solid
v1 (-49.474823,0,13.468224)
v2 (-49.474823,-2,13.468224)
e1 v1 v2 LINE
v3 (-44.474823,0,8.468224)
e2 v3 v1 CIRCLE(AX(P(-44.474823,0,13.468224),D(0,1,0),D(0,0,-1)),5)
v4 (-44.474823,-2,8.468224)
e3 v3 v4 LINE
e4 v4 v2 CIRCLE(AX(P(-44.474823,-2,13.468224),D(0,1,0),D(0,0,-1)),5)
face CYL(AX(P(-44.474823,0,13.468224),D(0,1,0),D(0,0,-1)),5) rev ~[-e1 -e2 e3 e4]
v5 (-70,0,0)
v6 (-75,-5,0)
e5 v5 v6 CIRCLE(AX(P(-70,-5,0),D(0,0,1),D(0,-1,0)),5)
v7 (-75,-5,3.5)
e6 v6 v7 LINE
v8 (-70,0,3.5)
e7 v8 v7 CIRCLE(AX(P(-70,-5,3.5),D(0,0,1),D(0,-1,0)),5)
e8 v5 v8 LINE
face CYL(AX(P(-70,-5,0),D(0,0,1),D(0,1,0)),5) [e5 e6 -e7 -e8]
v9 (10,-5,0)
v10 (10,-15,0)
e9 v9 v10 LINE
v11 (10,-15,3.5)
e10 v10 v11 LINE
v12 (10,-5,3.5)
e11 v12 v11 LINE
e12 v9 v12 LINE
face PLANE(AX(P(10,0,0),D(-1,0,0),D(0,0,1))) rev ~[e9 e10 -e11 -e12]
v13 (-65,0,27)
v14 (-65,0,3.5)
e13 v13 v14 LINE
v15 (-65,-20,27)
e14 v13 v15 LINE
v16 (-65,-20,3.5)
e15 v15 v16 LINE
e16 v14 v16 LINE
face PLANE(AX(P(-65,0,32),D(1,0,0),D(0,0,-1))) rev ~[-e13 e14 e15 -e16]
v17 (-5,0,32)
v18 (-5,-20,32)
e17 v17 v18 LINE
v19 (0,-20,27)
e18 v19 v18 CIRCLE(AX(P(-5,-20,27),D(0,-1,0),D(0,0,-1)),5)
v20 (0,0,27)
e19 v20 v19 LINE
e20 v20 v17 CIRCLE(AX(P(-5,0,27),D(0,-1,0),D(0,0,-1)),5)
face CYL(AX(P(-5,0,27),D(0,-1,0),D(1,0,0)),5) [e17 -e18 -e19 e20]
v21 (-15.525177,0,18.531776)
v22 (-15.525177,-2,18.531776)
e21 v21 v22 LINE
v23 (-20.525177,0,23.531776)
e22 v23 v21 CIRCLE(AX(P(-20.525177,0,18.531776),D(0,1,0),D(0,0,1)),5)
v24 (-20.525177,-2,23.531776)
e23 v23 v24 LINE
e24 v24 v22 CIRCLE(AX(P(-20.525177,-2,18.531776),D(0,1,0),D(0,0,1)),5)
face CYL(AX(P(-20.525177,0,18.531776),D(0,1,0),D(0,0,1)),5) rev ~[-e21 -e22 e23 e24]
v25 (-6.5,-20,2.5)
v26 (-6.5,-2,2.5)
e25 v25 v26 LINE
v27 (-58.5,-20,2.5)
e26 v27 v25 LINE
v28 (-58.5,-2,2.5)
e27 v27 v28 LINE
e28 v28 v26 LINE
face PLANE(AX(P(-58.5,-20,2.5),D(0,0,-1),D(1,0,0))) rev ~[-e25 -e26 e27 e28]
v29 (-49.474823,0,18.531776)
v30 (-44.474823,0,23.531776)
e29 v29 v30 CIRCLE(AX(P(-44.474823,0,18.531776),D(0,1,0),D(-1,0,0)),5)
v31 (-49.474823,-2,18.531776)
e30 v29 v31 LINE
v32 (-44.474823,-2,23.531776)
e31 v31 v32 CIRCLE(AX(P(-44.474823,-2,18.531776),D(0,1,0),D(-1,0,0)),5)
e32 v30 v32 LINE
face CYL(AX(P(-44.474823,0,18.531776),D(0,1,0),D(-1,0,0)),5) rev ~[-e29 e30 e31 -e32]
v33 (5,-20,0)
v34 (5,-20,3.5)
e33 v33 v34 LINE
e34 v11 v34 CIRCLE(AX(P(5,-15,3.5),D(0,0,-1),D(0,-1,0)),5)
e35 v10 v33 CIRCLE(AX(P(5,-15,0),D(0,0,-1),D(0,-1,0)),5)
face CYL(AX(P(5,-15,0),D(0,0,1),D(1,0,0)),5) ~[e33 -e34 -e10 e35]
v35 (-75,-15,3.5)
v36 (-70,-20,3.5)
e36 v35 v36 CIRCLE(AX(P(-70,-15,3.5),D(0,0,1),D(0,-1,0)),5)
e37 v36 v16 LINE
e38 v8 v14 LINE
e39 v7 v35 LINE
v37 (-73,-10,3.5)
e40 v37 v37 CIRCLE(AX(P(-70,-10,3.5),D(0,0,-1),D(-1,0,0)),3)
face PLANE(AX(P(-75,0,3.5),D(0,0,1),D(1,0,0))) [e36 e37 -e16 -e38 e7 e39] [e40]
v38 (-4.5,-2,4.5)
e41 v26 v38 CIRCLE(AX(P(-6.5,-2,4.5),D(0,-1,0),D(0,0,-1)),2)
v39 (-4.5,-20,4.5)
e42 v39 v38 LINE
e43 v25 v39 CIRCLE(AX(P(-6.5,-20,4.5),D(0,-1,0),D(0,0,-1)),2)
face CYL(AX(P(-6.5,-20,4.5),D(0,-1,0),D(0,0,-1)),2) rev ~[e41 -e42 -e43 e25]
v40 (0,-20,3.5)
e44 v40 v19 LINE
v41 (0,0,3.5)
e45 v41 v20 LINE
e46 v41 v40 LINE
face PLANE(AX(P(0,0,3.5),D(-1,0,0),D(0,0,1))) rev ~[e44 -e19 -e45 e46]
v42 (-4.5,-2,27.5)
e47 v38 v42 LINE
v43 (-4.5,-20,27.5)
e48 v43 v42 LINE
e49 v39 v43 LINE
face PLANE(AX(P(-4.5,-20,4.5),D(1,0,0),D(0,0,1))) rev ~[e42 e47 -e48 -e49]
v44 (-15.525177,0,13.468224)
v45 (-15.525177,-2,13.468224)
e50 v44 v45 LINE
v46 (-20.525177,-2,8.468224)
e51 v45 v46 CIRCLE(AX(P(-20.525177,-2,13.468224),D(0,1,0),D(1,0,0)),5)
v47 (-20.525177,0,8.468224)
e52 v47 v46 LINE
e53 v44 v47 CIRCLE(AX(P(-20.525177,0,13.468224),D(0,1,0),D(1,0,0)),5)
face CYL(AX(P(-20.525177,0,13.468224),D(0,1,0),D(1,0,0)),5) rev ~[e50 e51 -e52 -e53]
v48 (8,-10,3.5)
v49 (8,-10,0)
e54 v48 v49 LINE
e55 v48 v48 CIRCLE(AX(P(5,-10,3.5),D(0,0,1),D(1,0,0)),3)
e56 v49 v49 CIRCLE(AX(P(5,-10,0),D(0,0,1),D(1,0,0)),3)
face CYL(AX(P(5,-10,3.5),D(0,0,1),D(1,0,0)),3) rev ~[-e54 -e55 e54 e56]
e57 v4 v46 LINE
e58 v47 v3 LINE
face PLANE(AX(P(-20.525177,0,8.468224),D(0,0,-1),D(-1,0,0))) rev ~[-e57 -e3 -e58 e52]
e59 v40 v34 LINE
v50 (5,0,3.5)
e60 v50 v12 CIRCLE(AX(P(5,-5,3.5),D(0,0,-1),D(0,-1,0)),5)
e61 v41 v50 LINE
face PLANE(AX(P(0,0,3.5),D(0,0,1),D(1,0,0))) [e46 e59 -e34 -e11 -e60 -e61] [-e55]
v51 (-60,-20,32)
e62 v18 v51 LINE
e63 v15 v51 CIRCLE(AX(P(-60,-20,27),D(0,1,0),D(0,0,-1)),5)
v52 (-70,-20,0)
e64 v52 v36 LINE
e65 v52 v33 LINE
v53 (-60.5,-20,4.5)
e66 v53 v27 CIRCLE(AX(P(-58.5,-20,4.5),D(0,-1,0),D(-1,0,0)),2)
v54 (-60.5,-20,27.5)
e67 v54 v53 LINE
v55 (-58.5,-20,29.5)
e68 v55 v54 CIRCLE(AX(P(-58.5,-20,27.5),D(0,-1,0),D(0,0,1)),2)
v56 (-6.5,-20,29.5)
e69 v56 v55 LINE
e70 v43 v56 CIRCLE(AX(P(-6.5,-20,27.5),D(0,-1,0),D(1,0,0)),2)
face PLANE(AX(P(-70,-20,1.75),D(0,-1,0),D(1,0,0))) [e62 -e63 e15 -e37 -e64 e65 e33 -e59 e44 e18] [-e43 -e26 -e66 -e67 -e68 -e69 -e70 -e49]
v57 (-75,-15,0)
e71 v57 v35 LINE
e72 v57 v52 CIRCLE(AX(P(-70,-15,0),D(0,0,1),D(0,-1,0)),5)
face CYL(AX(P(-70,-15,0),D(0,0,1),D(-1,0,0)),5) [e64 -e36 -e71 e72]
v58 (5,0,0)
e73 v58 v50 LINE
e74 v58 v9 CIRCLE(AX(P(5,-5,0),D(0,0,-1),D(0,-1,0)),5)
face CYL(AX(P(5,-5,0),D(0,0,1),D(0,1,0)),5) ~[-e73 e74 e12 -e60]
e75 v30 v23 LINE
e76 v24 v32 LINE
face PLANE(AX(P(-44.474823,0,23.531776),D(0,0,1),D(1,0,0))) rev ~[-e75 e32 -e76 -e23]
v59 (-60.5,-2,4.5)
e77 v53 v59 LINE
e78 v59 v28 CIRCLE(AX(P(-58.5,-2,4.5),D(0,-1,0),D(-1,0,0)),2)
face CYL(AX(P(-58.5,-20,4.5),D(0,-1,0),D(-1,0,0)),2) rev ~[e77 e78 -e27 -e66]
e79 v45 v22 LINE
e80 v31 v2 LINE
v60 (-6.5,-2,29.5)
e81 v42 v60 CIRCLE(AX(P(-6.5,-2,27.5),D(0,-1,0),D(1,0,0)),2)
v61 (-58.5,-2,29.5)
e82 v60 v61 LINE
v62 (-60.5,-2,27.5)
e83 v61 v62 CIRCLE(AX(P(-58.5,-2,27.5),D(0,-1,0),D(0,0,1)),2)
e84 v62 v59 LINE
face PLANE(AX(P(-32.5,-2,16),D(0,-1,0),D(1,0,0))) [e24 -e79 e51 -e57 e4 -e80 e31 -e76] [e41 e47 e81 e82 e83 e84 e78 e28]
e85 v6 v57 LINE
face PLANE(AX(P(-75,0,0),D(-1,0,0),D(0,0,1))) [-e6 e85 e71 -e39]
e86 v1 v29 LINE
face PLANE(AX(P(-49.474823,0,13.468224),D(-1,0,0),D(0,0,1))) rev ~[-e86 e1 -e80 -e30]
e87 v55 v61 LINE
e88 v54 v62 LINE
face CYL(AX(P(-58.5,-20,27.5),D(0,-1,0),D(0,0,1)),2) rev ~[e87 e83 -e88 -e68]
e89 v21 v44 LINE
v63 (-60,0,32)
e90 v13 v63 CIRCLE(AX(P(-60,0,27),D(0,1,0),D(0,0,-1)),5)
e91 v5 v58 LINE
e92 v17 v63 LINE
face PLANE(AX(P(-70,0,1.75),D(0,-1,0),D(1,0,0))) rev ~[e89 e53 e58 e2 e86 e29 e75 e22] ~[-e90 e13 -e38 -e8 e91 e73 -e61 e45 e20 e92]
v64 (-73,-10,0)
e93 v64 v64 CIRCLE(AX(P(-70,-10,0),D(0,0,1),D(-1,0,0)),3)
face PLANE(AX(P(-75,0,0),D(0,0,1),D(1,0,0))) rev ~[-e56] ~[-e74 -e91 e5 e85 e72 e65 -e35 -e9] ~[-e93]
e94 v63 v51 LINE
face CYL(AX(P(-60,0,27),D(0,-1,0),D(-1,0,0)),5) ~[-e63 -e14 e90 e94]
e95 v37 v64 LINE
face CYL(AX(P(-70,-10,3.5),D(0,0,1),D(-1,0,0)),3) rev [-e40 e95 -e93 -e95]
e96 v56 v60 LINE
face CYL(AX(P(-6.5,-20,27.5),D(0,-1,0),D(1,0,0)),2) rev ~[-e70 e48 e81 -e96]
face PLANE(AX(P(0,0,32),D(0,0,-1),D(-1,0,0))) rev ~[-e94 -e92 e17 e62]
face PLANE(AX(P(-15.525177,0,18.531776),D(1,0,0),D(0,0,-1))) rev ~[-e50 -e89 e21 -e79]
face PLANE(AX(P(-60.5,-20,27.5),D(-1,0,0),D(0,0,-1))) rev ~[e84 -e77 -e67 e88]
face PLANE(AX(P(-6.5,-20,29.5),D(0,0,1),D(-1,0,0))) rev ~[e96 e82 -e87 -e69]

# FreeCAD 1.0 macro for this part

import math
import FreeCAD as App
import Part
import Sketcher

V = App.Vector


def edges_at(feature, points):
    """Names of the edges that pass closest to the given points."""
    edges = feature.Shape.Edges
    near = lambda p: min(range(len(edges)), key=lambda i: edges[i].distToShape(Part.Vertex(*p))[0])
    return sorted({f"Edge{near(p) + 1}" for p in points})


def add_polygon(sketch, points):
    """Adds a closed chain of lines whose ends are joined by coincident constraints."""
    first, n = sketch.GeometryCount, len(points)
    for a, b in zip(points, points[1:] + points[:1]):
        sketch.addGeometry(Part.LineSegment(App.Vector(*a, 0), App.Vector(*b, 0)), False)
    for i in range(n):
        sketch.addConstraint(Sketcher.Constraint("Coincident", first + i, 2, first + (i + 1) % n, 1))

doc = App.newDocument("Part")
body = doc.addObject("PartDesign::Body", "Body")

sketch1 = doc.addObject("Sketcher::SketchObject", "Sketch")
body.addObject(sketch1)
sketch1.AttachmentSupport = (doc.XZ_Plane, [""])
sketch1.MapMode = "FlatFace"
add_polygon(sketch1, [(-75, 3.5), (-75, 0), (10, 0), (10, 3.5), (0, 3.5), (0, 32), (-65, 32), (-65, 3.5)])
sketch1.addConstraint(Sketcher.Constraint("Vertical", 0))
sketch1.addConstraint(Sketcher.Constraint("Horizontal", 1))
sketch1.addConstraint(Sketcher.Constraint("Vertical", 2))
sketch1.addConstraint(Sketcher.Constraint("Horizontal", 3))
sketch1.addConstraint(Sketcher.Constraint("Vertical", 4))
sketch1.addConstraint(Sketcher.Constraint("Horizontal", 5))
sketch1.addConstraint(Sketcher.Constraint("Vertical", 6))
sketch1.addConstraint(Sketcher.Constraint("Horizontal", 7))
sketch1.addConstraint(Sketcher.Constraint("PointOnObject", 0, 2, -1))
sketch1.addConstraint(Sketcher.Constraint("PointOnObject", 3, 2, -2))
sketch1.addConstraint(Sketcher.Constraint("Horizontal", 3, 2, 6, 2))
sketch1.addConstraint(Sketcher.Constraint("Equal", 3, 7))
sketch1.addConstraint(Sketcher.Constraint("DistanceX", 1, 1, 1, 2, 85.0))
sketch1.addConstraint(Sketcher.Constraint("DistanceX", 3, 2, 3, 1, 10.0))
sketch1.addConstraint(Sketcher.Constraint("DistanceY", 0, 2, 0, 1, 3.5))
sketch1.addConstraint(Sketcher.Constraint("DistanceY", 4, 1, 4, 2, 28.5))
pad1 = doc.addObject("PartDesign::Pad", "Pad")
body.addObject(pad1)
pad1.Profile = sketch1
pad1.Length = 20

sketch2 = doc.addObject("Sketcher::SketchObject", "Sketch001")
body.addObject(sketch2)
sketch2.AttachmentSupport = (doc.XY_Plane, [""])
sketch2.MapMode = "FlatFace"
sketch2.AttachmentOffset = App.Placement(V(0, 0, 3.5), App.Rotation())
sketch2.addGeometry(Part.Circle(V(5, -10, 0), V(0, 0, 1), 3), False)
sketch2.addConstraint(Sketcher.Constraint("Diameter", 0, 6.0))
sketch2.addConstraint(Sketcher.Constraint("DistanceX", -1, 1, 0, 3, 5.0))
sketch2.addConstraint(Sketcher.Constraint("DistanceY", 0, 3, -1, 1, 10.0))
pocket1 = doc.addObject("PartDesign::Pocket", "Pocket")
body.addObject(pocket1)
pocket1.Profile = sketch2
pocket1.Type = "ThroughAll"
doc.recompute()

datumplane = doc.addObject("PartDesign::Plane", "DatumPlane")
body.addObject(datumplane)
datumplane.AttachmentSupport = (doc.YZ_Plane, [""])
datumplane.MapMode = "FlatFace"
datumplane.AttachmentOffset = App.Placement(V(0, 0, -32.5), App.Rotation())
mirrored = doc.addObject("PartDesign::Mirrored", "Mirrored")
body.addObject(mirrored)
mirrored.Originals = [pocket1]
mirrored.MirrorPlane = (datumplane, [""])
body.Tip = mirrored
doc.recompute()

fillet = doc.addObject("PartDesign::Fillet", "Fillet")
body.addObject(fillet)
fillet.Base = (mirrored, edges_at(mirrored, [(0, -10, 32), (-65, -10, 32)]))
fillet.Radius = 5

sketch3 = doc.addObject("Sketcher::SketchObject", "Sketch002")
body.addObject(sketch3)
sketch3.AttachmentSupport = (doc.XZ_Plane, [""])
sketch3.MapMode = "FlatFace"
sketch3.AttachmentOffset = App.Placement(V(0, 0, 20), App.Rotation())
sketch3.addGeometry(Part.LineSegment(V(-58.5, 2.5, 0), V(-6.5, 2.5, 0)), False)
sketch3.addGeometry(Part.ArcOfCircle(Part.Circle(V(-6.5, 4.5, 0), V(0, 0, 1), 2), math.radians(-90), math.radians(0)), False)
sketch3.addGeometry(Part.LineSegment(V(-4.5, 4.5, 0), V(-4.5, 27.5, 0)), False)
sketch3.addGeometry(Part.ArcOfCircle(Part.Circle(V(-6.5, 27.5, 0), V(0, 0, 1), 2), math.radians(0), math.radians(90)), False)
sketch3.addGeometry(Part.LineSegment(V(-6.5, 29.5, 0), V(-58.5, 29.5, 0)), False)
sketch3.addGeometry(Part.ArcOfCircle(Part.Circle(V(-58.5, 27.5, 0), V(0, 0, 1), 2), math.radians(90), math.radians(180)), False)
sketch3.addGeometry(Part.LineSegment(V(-60.5, 27.5, 0), V(-60.5, 4.5, 0)), False)
sketch3.addGeometry(Part.ArcOfCircle(Part.Circle(V(-58.5, 4.5, 0), V(0, 0, 1), 2), math.radians(180), math.radians(270)), False)
sketch3.addConstraint(Sketcher.Constraint("Tangent", 0, 2, 1, 1))
sketch3.addConstraint(Sketcher.Constraint("Tangent", 1, 2, 2, 1))
sketch3.addConstraint(Sketcher.Constraint("Tangent", 2, 2, 3, 1))
sketch3.addConstraint(Sketcher.Constraint("Tangent", 3, 2, 4, 1))
sketch3.addConstraint(Sketcher.Constraint("Tangent", 4, 2, 5, 1))
sketch3.addConstraint(Sketcher.Constraint("Tangent", 5, 2, 6, 1))
sketch3.addConstraint(Sketcher.Constraint("Tangent", 6, 2, 7, 1))
sketch3.addConstraint(Sketcher.Constraint("Tangent", 7, 2, 0, 1))
sketch3.addConstraint(Sketcher.Constraint("Horizontal", 0))
sketch3.addConstraint(Sketcher.Constraint("Vertical", 2))
sketch3.addConstraint(Sketcher.Constraint("Horizontal", 4))
sketch3.addConstraint(Sketcher.Constraint("Vertical", 6))
sketch3.addConstraint(Sketcher.Constraint("Equal", 1, 3))
sketch3.addConstraint(Sketcher.Constraint("Equal", 3, 5))
sketch3.addConstraint(Sketcher.Constraint("Equal", 5, 7))
sketch3.addConstraint(Sketcher.Constraint("Radius", 1, 2.0))
sketch3.addConstraint(Sketcher.Constraint("DistanceX", 0, 1, 0, 2, 52.0))
sketch3.addConstraint(Sketcher.Constraint("DistanceY", 2, 1, 2, 2, 23.0))
sketch3.addConstraint(Sketcher.Constraint("DistanceX", 1, 3, -1, 1, 6.5))
sketch3.addConstraint(Sketcher.Constraint("DistanceY", -1, 1, 1, 3, 4.5))
pocket2 = doc.addObject("PartDesign::Pocket", "Pocket001")
body.addObject(pocket2)
pocket2.Profile = sketch3
pocket2.Length = 18

sketch4 = doc.addObject("Sketcher::SketchObject", "Sketch003")
body.addObject(sketch4)
sketch4.AttachmentSupport = (doc.XZ_Plane, [""])
sketch4.MapMode = "FlatFace"
sketch4.addGeometry(Part.ArcOfCircle(Part.Circle(V(-20.525177, 13.468224, 0), V(0, 0, 1), 5), math.radians(-90), math.radians(0)), False)
sketch4.addGeometry(Part.LineSegment(V(-20.525177, 8.468224, 0), V(-44.474823, 8.468224, 0)), False)
sketch4.addGeometry(Part.ArcOfCircle(Part.Circle(V(-44.474823, 13.468224, 0), V(0, 0, 1), 5), math.radians(180), math.radians(270)), False)
sketch4.addGeometry(Part.LineSegment(V(-49.474823, 13.468224, 0), V(-49.474823, 18.531776, 0)), False)
sketch4.addGeometry(Part.ArcOfCircle(Part.Circle(V(-44.474823, 18.531776, 0), V(0, 0, 1), 5), math.radians(90), math.radians(180)), False)
sketch4.addGeometry(Part.LineSegment(V(-44.474823, 23.531776, 0), V(-20.525177, 23.531776, 0)), False)
sketch4.addGeometry(Part.ArcOfCircle(Part.Circle(V(-20.525177, 18.531776, 0), V(0, 0, 1), 5), math.radians(0), math.radians(90)), False)
sketch4.addGeometry(Part.LineSegment(V(-15.525177, 18.531776, 0), V(-15.525177, 13.468224, 0)), False)
sketch4.addConstraint(Sketcher.Constraint("Tangent", 0, 1, 1, 1))
sketch4.addConstraint(Sketcher.Constraint("Tangent", 1, 2, 2, 2))
sketch4.addConstraint(Sketcher.Constraint("Tangent", 2, 1, 3, 1))
sketch4.addConstraint(Sketcher.Constraint("Tangent", 3, 2, 4, 2))
sketch4.addConstraint(Sketcher.Constraint("Tangent", 4, 1, 5, 1))
sketch4.addConstraint(Sketcher.Constraint("Tangent", 5, 2, 6, 2))
sketch4.addConstraint(Sketcher.Constraint("Tangent", 6, 1, 7, 1))
sketch4.addConstraint(Sketcher.Constraint("Tangent", 7, 2, 0, 2))
sketch4.addConstraint(Sketcher.Constraint("Horizontal", 1))
sketch4.addConstraint(Sketcher.Constraint("Vertical", 3))
sketch4.addConstraint(Sketcher.Constraint("Horizontal", 5))
sketch4.addConstraint(Sketcher.Constraint("Vertical", 7))
sketch4.addConstraint(Sketcher.Constraint("Equal", 0, 2))
sketch4.addConstraint(Sketcher.Constraint("Equal", 2, 4))
sketch4.addConstraint(Sketcher.Constraint("Equal", 4, 6))
sketch4.addConstraint(Sketcher.Constraint("Radius", 0, 5.0))
sketch4.addConstraint(Sketcher.Constraint("DistanceY", 3, 1, 3, 2, 5.063552))
sketch4.addConstraint(Sketcher.Constraint("DistanceX", 1, 2, 1, 1, 23.949646))
sketch4.addConstraint(Sketcher.Constraint("DistanceX", 0, 3, -1, 1, 20.525177))
sketch4.addConstraint(Sketcher.Constraint("DistanceY", -1, 1, 0, 3, 13.468224))
pocket3 = doc.addObject("PartDesign::Pocket", "Pocket002")
body.addObject(pocket3)
pocket3.Profile = sketch4
pocket3.Type = "ThroughAll"
pocket3.Reversed = True
doc.recompute()

fillet2 = doc.addObject("PartDesign::Fillet", "Fillet001")
body.addObject(fillet2)
fillet2.Base = (pocket3, edges_at(pocket3, [
    (-75, -20, 1.75),
    (-75, 0, 1.75),
    (10, -20, 1.75),
    (10, 0, 1.75),
]))
fillet2.Radius = 5

doc.recompute()
